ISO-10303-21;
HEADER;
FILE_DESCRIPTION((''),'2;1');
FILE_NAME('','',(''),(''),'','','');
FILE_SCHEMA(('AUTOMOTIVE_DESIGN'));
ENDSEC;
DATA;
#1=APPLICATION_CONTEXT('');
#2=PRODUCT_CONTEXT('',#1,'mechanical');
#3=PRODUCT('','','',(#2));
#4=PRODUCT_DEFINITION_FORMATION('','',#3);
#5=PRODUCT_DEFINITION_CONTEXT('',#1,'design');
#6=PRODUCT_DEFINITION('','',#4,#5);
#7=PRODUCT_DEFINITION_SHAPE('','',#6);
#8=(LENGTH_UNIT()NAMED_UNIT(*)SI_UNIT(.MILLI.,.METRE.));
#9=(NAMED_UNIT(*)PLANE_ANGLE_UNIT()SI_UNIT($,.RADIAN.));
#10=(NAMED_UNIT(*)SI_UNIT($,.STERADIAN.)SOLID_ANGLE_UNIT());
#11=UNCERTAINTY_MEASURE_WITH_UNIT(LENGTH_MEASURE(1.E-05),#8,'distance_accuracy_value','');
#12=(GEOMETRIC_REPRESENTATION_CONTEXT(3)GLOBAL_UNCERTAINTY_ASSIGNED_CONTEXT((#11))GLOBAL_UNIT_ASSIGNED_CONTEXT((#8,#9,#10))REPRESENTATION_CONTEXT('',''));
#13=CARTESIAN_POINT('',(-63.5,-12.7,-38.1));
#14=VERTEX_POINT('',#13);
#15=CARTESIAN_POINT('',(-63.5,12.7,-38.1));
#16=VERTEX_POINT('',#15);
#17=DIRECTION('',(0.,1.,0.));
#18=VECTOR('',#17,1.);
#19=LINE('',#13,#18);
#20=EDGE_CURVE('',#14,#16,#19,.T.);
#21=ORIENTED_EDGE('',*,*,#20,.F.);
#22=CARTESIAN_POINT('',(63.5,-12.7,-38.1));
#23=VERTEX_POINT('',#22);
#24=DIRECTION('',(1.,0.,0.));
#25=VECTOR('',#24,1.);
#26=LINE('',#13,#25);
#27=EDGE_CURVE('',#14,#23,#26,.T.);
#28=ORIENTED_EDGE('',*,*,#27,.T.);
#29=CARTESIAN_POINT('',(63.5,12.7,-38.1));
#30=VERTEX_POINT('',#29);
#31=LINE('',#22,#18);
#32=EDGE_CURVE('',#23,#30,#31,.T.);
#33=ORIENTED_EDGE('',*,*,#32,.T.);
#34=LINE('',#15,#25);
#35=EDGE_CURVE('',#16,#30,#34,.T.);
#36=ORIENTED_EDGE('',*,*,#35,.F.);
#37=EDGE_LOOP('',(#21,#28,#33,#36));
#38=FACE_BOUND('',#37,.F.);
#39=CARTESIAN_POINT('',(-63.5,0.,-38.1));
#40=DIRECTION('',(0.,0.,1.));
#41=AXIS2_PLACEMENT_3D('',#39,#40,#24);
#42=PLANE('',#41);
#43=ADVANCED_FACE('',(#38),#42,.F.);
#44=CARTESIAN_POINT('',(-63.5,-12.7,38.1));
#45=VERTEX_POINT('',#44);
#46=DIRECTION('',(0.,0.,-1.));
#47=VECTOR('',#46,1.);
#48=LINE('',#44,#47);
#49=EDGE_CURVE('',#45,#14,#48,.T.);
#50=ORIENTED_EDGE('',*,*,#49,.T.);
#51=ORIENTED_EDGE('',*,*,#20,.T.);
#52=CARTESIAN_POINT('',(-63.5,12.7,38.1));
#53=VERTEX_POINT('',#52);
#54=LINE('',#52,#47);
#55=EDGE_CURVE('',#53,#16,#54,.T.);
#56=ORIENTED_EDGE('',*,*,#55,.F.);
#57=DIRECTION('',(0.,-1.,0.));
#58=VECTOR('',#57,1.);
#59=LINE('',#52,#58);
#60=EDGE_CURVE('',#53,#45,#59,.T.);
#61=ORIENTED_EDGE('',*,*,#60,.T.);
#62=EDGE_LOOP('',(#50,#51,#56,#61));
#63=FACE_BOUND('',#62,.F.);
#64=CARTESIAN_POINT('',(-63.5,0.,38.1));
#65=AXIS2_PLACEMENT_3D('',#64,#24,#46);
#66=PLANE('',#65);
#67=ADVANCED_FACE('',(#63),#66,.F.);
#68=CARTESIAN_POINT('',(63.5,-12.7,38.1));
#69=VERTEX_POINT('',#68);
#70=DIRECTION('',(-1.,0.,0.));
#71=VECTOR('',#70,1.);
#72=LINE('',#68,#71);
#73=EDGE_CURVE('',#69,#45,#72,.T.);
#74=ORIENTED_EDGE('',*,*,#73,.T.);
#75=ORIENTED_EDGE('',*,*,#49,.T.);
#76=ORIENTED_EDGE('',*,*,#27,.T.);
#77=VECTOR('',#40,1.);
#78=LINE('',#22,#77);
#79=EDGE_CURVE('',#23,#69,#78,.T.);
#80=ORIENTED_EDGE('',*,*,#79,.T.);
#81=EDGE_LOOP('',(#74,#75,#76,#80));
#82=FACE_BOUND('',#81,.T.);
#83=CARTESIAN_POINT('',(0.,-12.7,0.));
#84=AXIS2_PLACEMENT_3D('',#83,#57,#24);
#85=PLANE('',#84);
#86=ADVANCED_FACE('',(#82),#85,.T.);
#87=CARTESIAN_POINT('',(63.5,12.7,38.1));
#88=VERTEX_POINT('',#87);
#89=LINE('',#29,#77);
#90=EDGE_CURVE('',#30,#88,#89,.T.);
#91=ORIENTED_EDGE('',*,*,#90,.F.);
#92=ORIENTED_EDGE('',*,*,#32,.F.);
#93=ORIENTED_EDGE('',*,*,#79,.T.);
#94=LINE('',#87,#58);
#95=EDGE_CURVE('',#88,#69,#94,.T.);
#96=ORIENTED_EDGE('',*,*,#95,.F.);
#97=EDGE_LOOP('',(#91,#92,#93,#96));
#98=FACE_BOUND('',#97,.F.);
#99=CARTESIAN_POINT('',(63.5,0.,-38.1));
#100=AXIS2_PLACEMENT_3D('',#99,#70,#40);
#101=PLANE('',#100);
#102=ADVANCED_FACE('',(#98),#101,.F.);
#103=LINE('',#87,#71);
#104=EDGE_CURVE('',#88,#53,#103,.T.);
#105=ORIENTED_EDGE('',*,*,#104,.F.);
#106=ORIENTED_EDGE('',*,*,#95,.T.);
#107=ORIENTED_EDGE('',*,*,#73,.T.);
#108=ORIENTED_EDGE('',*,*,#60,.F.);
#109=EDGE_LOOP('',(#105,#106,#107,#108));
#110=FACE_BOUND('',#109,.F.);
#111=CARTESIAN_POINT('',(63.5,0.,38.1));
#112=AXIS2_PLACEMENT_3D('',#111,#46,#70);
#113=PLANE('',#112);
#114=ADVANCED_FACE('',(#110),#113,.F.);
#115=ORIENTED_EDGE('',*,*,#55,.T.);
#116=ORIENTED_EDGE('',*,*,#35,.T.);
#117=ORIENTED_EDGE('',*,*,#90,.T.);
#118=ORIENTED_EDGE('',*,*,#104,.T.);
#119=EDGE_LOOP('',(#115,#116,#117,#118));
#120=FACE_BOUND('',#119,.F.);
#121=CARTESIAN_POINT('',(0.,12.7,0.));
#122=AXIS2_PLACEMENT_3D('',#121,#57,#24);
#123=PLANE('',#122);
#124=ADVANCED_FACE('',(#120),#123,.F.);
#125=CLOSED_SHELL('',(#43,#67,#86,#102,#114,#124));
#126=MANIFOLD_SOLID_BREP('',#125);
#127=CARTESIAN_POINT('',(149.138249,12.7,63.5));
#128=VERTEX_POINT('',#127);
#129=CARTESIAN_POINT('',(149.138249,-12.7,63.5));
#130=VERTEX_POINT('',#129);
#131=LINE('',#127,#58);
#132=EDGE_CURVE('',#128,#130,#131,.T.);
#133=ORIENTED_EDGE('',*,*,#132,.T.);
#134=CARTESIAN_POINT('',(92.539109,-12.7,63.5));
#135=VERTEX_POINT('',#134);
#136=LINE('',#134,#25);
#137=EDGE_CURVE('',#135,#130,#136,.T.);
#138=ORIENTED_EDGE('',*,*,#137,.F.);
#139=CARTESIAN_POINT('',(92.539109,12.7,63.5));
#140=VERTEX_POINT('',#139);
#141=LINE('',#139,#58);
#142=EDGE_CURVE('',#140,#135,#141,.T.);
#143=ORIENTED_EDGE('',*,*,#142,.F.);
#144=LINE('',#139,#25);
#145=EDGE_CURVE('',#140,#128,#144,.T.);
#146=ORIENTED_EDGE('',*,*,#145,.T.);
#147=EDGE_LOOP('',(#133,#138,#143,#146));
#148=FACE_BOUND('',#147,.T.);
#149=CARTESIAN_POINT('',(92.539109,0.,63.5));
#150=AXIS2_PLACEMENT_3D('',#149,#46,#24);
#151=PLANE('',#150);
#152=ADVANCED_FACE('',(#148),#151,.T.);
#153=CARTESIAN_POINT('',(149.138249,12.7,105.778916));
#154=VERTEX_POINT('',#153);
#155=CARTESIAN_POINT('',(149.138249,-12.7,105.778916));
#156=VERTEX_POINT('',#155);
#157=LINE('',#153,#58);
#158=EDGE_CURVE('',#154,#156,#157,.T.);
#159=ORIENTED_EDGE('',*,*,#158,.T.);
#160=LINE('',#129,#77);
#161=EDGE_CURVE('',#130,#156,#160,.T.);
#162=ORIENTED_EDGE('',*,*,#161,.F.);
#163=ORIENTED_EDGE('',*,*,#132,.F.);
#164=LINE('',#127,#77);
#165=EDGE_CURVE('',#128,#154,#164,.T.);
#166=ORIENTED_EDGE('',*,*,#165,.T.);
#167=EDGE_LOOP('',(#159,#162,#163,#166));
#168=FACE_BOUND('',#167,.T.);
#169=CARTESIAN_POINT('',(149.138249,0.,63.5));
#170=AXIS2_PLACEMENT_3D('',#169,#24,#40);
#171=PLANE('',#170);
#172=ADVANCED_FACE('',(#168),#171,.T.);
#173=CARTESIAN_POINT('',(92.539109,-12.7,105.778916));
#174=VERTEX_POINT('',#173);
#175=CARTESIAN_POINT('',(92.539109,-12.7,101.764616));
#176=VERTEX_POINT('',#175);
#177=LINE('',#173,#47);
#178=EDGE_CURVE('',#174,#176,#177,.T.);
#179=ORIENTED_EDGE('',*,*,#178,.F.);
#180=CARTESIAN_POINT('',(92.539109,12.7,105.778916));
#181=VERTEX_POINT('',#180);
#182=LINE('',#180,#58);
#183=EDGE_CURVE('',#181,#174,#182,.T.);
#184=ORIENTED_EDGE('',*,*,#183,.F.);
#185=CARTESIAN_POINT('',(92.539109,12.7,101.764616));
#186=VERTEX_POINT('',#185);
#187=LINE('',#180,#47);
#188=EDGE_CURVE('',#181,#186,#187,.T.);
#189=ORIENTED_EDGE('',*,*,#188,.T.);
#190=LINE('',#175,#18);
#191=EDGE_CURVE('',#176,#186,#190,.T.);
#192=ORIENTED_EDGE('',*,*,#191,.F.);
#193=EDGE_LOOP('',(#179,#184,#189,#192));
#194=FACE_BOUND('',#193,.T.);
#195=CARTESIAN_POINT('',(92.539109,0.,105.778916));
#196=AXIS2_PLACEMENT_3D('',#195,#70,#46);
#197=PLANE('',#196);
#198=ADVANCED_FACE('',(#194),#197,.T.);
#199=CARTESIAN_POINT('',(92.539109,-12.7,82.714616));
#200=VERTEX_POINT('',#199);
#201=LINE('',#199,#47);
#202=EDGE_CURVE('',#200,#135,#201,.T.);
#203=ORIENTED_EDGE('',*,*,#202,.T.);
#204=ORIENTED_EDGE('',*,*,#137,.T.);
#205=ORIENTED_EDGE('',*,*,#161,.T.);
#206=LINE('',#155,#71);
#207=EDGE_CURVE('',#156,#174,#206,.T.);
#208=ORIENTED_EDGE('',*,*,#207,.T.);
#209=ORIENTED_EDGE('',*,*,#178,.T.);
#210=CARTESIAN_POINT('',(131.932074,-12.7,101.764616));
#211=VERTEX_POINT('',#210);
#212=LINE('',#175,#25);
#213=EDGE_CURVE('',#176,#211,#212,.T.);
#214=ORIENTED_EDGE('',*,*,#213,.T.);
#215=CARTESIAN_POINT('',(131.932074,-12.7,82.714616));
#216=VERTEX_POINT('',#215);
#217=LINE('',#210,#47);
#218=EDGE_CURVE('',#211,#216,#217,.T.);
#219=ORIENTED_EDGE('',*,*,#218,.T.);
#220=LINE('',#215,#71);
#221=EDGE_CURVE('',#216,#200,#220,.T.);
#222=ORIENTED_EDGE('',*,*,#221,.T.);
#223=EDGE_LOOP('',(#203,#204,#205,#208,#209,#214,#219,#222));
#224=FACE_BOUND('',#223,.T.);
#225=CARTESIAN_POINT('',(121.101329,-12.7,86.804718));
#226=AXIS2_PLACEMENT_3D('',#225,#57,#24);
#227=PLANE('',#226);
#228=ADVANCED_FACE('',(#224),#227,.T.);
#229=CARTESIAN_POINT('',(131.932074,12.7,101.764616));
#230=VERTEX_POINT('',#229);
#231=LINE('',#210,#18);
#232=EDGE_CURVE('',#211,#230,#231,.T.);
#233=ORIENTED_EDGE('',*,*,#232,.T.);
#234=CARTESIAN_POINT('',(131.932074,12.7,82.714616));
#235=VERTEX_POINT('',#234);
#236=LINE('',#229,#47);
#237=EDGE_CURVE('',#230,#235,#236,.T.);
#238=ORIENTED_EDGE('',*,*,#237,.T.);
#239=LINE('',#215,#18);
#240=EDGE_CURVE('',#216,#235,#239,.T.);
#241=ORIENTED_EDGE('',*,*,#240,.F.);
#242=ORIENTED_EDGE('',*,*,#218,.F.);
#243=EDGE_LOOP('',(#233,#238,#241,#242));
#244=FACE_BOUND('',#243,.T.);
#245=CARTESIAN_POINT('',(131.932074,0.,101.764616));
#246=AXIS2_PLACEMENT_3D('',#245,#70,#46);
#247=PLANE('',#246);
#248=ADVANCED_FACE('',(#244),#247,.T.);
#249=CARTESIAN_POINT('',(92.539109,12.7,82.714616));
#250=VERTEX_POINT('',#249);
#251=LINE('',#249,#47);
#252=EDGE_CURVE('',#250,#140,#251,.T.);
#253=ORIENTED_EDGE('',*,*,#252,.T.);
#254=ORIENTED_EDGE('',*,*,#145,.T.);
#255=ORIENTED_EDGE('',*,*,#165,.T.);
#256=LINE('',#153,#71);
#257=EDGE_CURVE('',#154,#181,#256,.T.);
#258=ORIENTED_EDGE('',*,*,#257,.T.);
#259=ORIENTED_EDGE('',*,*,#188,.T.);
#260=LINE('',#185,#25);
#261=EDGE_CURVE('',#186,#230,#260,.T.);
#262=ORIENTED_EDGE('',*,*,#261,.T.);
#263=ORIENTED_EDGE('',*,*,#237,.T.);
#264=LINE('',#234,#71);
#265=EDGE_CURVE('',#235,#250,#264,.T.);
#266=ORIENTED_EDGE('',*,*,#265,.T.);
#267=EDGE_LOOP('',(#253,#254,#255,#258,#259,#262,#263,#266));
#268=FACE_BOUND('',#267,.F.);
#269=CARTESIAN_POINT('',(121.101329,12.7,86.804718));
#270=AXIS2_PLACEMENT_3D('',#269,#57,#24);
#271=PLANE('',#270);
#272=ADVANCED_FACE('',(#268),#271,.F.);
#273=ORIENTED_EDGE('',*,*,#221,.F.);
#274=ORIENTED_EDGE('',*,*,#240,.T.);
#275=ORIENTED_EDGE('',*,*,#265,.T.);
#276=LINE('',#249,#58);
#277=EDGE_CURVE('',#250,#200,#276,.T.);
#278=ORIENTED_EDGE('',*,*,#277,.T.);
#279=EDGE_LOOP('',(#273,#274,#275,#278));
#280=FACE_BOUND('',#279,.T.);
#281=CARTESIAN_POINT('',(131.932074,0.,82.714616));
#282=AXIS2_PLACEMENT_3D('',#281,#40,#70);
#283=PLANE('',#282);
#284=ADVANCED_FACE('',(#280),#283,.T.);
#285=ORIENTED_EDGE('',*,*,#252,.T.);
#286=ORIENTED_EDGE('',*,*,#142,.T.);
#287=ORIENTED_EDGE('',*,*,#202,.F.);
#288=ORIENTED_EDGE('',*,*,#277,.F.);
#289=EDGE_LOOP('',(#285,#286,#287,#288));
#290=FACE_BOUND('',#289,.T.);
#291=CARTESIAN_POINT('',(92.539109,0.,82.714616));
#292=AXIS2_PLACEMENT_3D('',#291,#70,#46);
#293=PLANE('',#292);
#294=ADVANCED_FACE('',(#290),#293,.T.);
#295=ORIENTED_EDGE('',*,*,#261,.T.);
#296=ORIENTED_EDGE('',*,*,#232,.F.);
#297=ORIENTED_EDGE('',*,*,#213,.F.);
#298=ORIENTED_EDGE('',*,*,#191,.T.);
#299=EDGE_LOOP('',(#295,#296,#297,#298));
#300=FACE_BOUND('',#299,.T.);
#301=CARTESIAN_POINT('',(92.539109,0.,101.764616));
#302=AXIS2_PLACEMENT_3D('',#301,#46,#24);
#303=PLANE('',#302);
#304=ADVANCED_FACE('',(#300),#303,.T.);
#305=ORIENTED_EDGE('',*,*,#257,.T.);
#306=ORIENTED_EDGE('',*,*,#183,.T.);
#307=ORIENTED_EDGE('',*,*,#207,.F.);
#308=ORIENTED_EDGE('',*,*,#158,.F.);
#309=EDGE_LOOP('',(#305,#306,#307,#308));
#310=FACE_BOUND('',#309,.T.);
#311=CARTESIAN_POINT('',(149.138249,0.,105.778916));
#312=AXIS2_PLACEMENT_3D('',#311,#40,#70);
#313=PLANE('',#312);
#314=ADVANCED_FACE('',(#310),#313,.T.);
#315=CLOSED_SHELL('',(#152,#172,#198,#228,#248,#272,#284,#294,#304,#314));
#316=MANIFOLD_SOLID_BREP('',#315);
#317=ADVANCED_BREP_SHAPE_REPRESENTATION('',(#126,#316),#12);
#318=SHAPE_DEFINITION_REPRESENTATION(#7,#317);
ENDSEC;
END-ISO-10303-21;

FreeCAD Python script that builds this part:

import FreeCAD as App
import Part
import Sketcher
from FreeCAD import Vector
Q = App.Units.Quantity

doc = App.newDocument("Part")
body = doc.addObject("PartDesign::Body", "Body")
body.AllowCompound = True

sketch1 = doc.addObject("Sketcher::SketchObject", "Sketch")
body.addObject(sketch1)
sketch1.AttachmentSupport = (doc.XZ_Plane, [""])
sketch1.MapMode = "FlatFace"
sketch1.addGeometry([
    Part.LineSegment(Vector(63.5, -38.1, 0), Vector(63.5, 38.1, 0)),
    Part.LineSegment(Vector(63.5, 38.1, 0), Vector(-63.5, 38.1, 0)),
    Part.LineSegment(Vector(-63.5, 38.1, 0), Vector(-63.5, -38.1, 0)),
    Part.LineSegment(Vector(-63.5, -38.1, 0), Vector(63.5, -38.1, 0)),
    Part.LineSegment(Vector(131.932074, 82.714616, 0), Vector(92.539109, 82.714616, 0)),
    Part.LineSegment(Vector(92.539109, 82.714616, 0), Vector(92.539109, 63.5, 0)),
    Part.LineSegment(Vector(92.539109, 63.5, 0), Vector(149.138249, 63.5, 0)),
    Part.LineSegment(Vector(149.138249, 63.5, 0), Vector(149.138249, 105.778916, 0)),
    Part.LineSegment(Vector(149.138249, 105.778916, 0), Vector(92.539109, 105.778916, 0)),
    Part.LineSegment(Vector(92.539109, 105.778916, 0), Vector(92.539109, 101.764616, 0)),
    Part.LineSegment(Vector(92.539109, 101.764616, 0), Vector(131.932074, 101.764616, 0)),
    Part.LineSegment(Vector(131.932074, 101.764616, 0), Vector(131.932074, 82.714616, 0)),
], False)
sketch1.addConstraint([
    Sketcher.Constraint("Coincident", 0, 2, 1, 1),
    Sketcher.Constraint("Coincident", 1, 2, 2, 1),
    Sketcher.Constraint("Coincident", 2, 2, 3, 1),
    Sketcher.Constraint("Coincident", 3, 2, 0, 1),
    Sketcher.Constraint("Coincident", 4, 2, 5, 1),
    Sketcher.Constraint("Coincident", 5, 2, 6, 1),
    Sketcher.Constraint("Coincident", 6, 2, 7, 1),
    Sketcher.Constraint("Coincident", 7, 2, 8, 1),
    Sketcher.Constraint("Coincident", 8, 2, 9, 1),
    Sketcher.Constraint("Coincident", 9, 2, 10, 1),
    Sketcher.Constraint("Coincident", 10, 2, 11, 1),
    Sketcher.Constraint("Coincident", 11, 2, 4, 1),
    Sketcher.Constraint("Vertical", 0),
    Sketcher.Constraint("Horizontal", 1),
    Sketcher.Constraint("Vertical", 2),
    Sketcher.Constraint("Horizontal", 3),
    Sketcher.Constraint("Horizontal", 4),
    Sketcher.Constraint("Vertical", 5),
    Sketcher.Constraint("Horizontal", 6),
    Sketcher.Constraint("Vertical", 7),
    Sketcher.Constraint("Horizontal", 8),
    Sketcher.Constraint("Vertical", 9),
    Sketcher.Constraint("Horizontal", 10),
    Sketcher.Constraint("Vertical", 11),
    Sketcher.Constraint("Symmetric", 0, 2, 2, 2, -1, 1),
    Sketcher.Constraint("Vertical", 5, 2, 8, 2),
    Sketcher.Constraint("DistanceX", 1, 2, 1, 1, Q("5 in")),
    Sketcher.Constraint("DistanceY", 0, 1, 0, 2, Q("3 in")),
    Sketcher.Constraint("DistanceY", 0, 2, 5, 2, Q("1 in")),
    Sketcher.Constraint("DistanceY", 11, 2, 11, 1, Q("0.75 in")),
    Sketcher.Constraint("DistanceY", 9, 2, 9, 1, Q("4.0143 mm")),
    Sketcher.Constraint("DistanceX", 6, 1, 6, 2, Q("56.59914 mm")),
    Sketcher.Constraint("DistanceX", 4, 2, 4, 1, Q("39.392965 mm")),
    Sketcher.Constraint("DistanceY", 5, 2, 5, 1, Q("19.214616 mm")),
    Sketcher.Constraint("DistanceX", -1, 1, 4, 2, Q("92.539109 mm")),
])
pad1 = doc.addObject("PartDesign::Pad", "Pad")
body.addObject(pad1)
pad1.Profile = sketch1
pad1.Length = Q("1 in")
pad1.Midplane = True

doc.recompute()
